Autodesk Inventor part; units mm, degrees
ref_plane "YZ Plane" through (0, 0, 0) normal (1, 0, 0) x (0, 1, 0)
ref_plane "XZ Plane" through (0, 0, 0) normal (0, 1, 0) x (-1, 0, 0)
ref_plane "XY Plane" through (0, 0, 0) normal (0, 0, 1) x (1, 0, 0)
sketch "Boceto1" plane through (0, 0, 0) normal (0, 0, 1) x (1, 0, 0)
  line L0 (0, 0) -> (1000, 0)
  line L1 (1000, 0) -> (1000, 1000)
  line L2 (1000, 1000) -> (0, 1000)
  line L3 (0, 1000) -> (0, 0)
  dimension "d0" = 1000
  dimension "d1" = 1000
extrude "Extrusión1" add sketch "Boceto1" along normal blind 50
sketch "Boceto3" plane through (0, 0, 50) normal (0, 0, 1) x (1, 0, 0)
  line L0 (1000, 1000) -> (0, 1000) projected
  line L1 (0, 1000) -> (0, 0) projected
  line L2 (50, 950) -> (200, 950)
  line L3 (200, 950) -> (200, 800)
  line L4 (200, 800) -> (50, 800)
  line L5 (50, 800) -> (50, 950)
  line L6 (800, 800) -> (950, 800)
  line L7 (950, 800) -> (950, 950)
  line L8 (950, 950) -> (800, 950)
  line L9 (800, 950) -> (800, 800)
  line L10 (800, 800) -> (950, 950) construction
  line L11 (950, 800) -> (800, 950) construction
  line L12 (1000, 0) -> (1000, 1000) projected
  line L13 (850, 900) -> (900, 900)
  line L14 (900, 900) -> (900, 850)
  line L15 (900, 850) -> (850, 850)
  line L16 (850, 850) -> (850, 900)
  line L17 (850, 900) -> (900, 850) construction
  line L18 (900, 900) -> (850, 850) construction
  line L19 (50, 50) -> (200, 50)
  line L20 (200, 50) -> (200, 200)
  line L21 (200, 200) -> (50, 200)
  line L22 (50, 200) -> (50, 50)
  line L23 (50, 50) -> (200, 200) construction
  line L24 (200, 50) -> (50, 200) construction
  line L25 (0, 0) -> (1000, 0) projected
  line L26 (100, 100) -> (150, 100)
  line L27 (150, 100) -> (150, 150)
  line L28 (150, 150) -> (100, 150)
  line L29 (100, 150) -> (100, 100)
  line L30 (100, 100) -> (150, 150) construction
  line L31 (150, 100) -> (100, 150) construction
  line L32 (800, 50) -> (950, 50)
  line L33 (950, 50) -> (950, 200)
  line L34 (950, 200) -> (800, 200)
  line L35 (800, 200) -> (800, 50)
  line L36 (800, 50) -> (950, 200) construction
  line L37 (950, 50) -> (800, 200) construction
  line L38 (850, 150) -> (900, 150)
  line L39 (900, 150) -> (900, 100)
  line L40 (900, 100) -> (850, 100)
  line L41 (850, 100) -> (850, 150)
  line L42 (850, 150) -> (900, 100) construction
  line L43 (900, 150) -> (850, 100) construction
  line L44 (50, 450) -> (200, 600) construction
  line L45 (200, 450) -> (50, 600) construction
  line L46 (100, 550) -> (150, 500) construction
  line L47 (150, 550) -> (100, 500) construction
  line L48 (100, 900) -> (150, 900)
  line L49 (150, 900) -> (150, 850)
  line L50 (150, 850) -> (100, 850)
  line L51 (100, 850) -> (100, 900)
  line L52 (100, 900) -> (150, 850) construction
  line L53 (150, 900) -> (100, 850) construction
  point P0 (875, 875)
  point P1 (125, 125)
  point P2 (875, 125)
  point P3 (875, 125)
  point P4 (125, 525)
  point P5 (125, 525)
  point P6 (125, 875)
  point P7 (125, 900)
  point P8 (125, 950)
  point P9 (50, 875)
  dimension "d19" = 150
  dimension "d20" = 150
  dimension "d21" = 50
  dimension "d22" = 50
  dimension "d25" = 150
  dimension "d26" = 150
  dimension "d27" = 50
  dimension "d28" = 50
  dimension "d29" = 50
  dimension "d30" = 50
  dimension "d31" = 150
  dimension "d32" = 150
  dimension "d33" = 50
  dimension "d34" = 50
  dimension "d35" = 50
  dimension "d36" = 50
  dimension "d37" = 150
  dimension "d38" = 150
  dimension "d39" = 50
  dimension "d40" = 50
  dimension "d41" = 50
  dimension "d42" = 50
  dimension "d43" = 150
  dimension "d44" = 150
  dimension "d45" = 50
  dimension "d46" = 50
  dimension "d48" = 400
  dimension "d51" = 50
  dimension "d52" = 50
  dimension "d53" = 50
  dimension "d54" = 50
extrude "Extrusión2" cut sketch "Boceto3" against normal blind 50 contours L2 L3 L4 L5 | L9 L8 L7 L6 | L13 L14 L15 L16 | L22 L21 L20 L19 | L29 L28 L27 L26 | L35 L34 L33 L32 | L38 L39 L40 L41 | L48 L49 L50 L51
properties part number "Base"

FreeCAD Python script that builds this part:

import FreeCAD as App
import Part
import Sketcher


def add_polygon(sketch, points):
    """Adds a closed chain of lines whose ends are joined by coincident constraints."""
    first, n = sketch.GeometryCount, len(points)
    for a, b in zip(points, points[1:] + points[:1]):
        sketch.addGeometry(Part.LineSegment(App.Vector(*a, 0), App.Vector(*b, 0)), False)
    for i in range(n):
        sketch.addConstraint(Sketcher.Constraint("Coincident", first + i, 2, first + (i + 1) % n, 1))

doc = App.newDocument("Part")
body = doc.addObject("PartDesign::Body", "Body")

# Sketch on XY plane
sketch1 = body.newObject("Sketcher::SketchObject", "Sketch")
sketch1.AttachmentSupport = (doc.getObject("XY_Plane"), [""])
sketch1.MapMode = "FlatFace"
add_polygon(sketch1, [(0, 1000), (0, 0), (1000, 0), (1000, 1000)])  # lines 0-3
sketch1.addConstraint([
    Sketcher.Constraint("Vertical", 0),
    Sketcher.Constraint("Horizontal", 1),
    Sketcher.Constraint("Vertical", 2),
    Sketcher.Constraint("Horizontal", 3),
    Sketcher.Constraint("Coincident", 0, 2, -1, 1),
    Sketcher.Constraint("Equal", 3, 0),
    Sketcher.Constraint("DistanceX", 1, 1, 1, 2, 1000.0),
])
pad1 = body.newObject("PartDesign::Pad", "Pad")
pad1.Profile = sketch1
pad1.Length = 50

# Sketch on XY plane
sketch2 = body.newObject("Sketcher::SketchObject", "Sketch001")
sketch2.AttachmentSupport = (doc.getObject("XY_Plane"), [""])
sketch2.MapMode = "FlatFace"
sketch2.AttachmentOffset = App.Placement(App.Vector(0, 0, 50), App.Rotation())
add_polygon(sketch2, [(200, 950), (50, 950), (50, 800), (200, 800)])  # lines 0-3
add_polygon(sketch2, [(800, 950), (800, 800), (950, 800), (950, 950)])  # lines 4-7
add_polygon(sketch2, [(50, 200), (50, 50), (200, 50), (200, 200)])  # lines 8-11
add_polygon(sketch2, [(800, 200), (800, 50), (950, 50), (950, 200)])  # lines 12-15
sketch2.addConstraint([
    Sketcher.Constraint("Horizontal", 0),
    Sketcher.Constraint("Vertical", 1),
    Sketcher.Constraint("Horizontal", 2),
    Sketcher.Constraint("Vertical", 3),
    Sketcher.Constraint("Vertical", 4),
    Sketcher.Constraint("Horizontal", 5),
    Sketcher.Constraint("Vertical", 6),
    Sketcher.Constraint("Horizontal", 7),
    Sketcher.Constraint("Vertical", 8),
    Sketcher.Constraint("Horizontal", 9),
    Sketcher.Constraint("Vertical", 10),
    Sketcher.Constraint("Horizontal", 11),
    Sketcher.Constraint("Vertical", 12),
    Sketcher.Constraint("Horizontal", 13),
    Sketcher.Constraint("Vertical", 14),
    Sketcher.Constraint("Horizontal", 15),
    Sketcher.Constraint("Horizontal", 2, 2, 4, 2),
    Sketcher.Constraint("Horizontal", 3, 2, 6, 2),
    Sketcher.Constraint("Horizontal", 9, 2, 12, 2),
    Sketcher.Constraint("Horizontal", 11, 2, 14, 2),
    Sketcher.Constraint("Vertical", 1, 2, 8, 2),
    Sketcher.Constraint("Vertical", 3, 2, 9, 2),
    Sketcher.Constraint("Vertical", 7, 2, 12, 2),
    Sketcher.Constraint("Vertical", 6, 2, 13, 2),
    Sketcher.Constraint("Equal", 2, 5),
    Sketcher.Constraint("Equal", 15, 1),
    Sketcher.Constraint("Equal", 6, 8),
    Sketcher.Constraint("DistanceX", 0, 2, 0, 1, 150.0),
    Sketcher.Constraint("DistanceX", -1, 1, 0, 2, 50.0),
    Sketcher.Constraint("DistanceY", -1, 1, 8, 2, 50.0),
    Sketcher.Constraint("DistanceY", -1, 1, 0, 2, 950.0),
    Sketcher.Constraint("DistanceX", -1, 1, 4, 2, 800.0),
])
pocket1 = body.newObject("PartDesign::Pocket", "Pocket")
pocket1.Profile = sketch2
pocket1.Length = 50

doc.recompute()
